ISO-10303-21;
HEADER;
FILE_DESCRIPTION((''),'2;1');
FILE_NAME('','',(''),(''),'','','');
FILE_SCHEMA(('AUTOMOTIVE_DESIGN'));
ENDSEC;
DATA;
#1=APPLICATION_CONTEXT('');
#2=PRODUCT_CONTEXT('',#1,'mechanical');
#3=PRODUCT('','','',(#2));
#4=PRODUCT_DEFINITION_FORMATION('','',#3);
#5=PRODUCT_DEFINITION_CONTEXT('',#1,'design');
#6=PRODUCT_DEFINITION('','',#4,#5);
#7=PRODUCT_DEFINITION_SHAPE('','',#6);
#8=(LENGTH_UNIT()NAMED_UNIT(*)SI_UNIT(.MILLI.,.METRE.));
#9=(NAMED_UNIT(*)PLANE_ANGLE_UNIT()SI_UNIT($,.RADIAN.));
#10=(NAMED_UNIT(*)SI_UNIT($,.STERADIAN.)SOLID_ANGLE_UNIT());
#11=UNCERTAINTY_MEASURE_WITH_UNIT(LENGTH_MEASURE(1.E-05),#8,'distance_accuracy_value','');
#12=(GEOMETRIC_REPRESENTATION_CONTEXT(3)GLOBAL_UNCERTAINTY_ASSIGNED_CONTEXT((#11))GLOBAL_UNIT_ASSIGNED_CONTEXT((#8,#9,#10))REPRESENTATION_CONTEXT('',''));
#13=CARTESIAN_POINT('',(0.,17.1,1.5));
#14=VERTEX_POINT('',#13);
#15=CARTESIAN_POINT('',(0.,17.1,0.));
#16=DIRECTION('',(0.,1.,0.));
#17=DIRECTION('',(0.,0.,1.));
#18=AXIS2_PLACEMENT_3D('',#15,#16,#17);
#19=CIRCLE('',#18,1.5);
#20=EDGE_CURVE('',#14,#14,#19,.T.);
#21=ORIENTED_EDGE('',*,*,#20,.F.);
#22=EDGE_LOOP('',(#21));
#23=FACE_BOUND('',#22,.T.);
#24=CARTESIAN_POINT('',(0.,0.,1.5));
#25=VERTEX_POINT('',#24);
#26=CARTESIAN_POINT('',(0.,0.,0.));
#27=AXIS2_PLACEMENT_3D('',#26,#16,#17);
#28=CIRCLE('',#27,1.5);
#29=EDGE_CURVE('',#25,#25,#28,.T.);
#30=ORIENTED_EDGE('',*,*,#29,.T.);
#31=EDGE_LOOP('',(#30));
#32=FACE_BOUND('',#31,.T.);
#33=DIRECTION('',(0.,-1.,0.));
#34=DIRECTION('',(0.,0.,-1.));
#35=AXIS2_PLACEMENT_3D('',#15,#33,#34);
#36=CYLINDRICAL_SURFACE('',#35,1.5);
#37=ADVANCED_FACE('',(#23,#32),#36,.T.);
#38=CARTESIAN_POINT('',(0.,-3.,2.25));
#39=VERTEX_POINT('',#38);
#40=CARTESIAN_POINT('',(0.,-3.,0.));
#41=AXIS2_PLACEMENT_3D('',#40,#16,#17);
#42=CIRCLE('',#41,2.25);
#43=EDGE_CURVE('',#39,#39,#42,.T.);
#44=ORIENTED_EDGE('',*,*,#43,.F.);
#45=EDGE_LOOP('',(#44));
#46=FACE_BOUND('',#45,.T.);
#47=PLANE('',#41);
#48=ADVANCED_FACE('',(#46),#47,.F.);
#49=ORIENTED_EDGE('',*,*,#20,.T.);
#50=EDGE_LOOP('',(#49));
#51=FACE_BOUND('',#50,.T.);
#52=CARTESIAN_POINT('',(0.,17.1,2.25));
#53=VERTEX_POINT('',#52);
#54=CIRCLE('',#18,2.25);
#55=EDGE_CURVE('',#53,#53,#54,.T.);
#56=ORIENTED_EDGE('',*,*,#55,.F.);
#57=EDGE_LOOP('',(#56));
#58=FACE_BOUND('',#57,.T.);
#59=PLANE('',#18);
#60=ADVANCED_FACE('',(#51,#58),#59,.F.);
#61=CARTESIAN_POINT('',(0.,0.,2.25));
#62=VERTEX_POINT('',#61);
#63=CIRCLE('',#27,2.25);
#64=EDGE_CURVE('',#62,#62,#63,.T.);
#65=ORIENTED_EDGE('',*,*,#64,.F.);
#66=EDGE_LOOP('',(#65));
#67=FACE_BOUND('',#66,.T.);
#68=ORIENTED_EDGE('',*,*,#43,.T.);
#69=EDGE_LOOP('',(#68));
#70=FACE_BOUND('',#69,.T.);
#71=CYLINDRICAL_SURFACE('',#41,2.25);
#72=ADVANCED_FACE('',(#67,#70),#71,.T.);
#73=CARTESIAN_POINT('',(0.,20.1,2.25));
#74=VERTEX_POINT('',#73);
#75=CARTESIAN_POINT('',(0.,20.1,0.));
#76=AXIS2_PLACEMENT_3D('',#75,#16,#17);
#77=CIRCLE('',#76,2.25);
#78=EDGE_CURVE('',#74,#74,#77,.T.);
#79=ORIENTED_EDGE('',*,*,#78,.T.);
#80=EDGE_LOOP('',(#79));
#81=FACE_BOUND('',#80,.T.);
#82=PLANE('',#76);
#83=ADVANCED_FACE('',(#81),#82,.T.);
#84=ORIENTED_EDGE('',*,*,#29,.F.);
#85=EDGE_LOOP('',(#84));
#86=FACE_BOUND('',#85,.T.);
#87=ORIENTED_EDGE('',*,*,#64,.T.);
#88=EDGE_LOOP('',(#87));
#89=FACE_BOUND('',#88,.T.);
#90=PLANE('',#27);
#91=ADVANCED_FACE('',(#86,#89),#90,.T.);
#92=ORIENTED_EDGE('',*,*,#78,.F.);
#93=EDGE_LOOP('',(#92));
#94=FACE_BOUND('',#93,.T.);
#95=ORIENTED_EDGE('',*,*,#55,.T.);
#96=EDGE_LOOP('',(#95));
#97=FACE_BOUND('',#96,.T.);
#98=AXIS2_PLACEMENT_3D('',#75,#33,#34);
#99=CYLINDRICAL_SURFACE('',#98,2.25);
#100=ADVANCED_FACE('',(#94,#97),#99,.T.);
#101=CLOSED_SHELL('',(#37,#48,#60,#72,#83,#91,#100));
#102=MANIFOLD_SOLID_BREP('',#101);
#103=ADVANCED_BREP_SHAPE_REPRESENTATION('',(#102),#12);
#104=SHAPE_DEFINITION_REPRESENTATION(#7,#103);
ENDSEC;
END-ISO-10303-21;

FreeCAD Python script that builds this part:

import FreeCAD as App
import Part
import Sketcher
Q = App.Units.Quantity

doc = App.newDocument("Part")
body = doc.addObject("PartDesign::Body", "Body")

# Sketch on XZ plane
sketch1 = doc.addObject("Sketcher::SketchObject", "Sketch")
body.addObject(sketch1)
sketch1.AttachmentSupport = (doc.XZ_Plane, [""])
sketch1.MapMode = "FlatFace"
sketch1.addGeometry(Part.Circle(App.Vector(0, 0, 0), App.Vector(0, 0, 1), 1.5), False)
sketch1.addConstraint([
    Sketcher.Constraint("Coincident", 0, 3, -1, 1),
    Sketcher.Constraint("Diameter", 0, Q("3 mm")),
])
pad1 = doc.addObject("PartDesign::Pad", "Pad")
body.addObject(pad1)
pad1.Profile = sketch1
pad1.Length = 17.1
pad1.Reversed = True

# Sketch on XZ plane
sketch2 = doc.addObject("Sketcher::SketchObject", "Sketch001")
body.addObject(sketch2)
sketch2.AttachmentSupport = (doc.XZ_Plane, [""])
sketch2.MapMode = "FlatFace"
sketch2.AttachmentOffset = App.Placement(App.Vector(0, 0, -17.1), App.Rotation())
sketch2.addGeometry(Part.Circle(App.Vector(0, 0, 0), App.Vector(0, 0, 1), 2.2), False)
sketch2.addConstraint([
    Sketcher.Constraint("Coincident", 0, 3, -1, 1),
    Sketcher.Constraint("Diameter", 0, Q("4.5 mm")),
])
pad2 = doc.addObject("PartDesign::Pad", "Pad001")
body.addObject(pad2)
pad2.Profile = sketch2
pad2.Length = 3
pad2.Reversed = True

# Sketch on XZ plane
sketch3 = doc.addObject("Sketcher::SketchObject", "Sketch002")
body.addObject(sketch3)
sketch3.AttachmentSupport = (doc.XZ_Plane, [""])
sketch3.MapMode = "FlatFace"
sketch3.addGeometry(Part.Circle(App.Vector(0, 0, 0), App.Vector(0, 0, 1), 2.2), False)
sketch3.addConstraint([
    Sketcher.Constraint("Coincident", 0, 3, -1, 1),
    Sketcher.Constraint("Diameter", 0, Q("4.5 mm")),
])
pad3 = doc.addObject("PartDesign::Pad", "Pad002")
body.addObject(pad3)
pad3.Profile = sketch3
pad3.Length = 3

doc.recompute()
